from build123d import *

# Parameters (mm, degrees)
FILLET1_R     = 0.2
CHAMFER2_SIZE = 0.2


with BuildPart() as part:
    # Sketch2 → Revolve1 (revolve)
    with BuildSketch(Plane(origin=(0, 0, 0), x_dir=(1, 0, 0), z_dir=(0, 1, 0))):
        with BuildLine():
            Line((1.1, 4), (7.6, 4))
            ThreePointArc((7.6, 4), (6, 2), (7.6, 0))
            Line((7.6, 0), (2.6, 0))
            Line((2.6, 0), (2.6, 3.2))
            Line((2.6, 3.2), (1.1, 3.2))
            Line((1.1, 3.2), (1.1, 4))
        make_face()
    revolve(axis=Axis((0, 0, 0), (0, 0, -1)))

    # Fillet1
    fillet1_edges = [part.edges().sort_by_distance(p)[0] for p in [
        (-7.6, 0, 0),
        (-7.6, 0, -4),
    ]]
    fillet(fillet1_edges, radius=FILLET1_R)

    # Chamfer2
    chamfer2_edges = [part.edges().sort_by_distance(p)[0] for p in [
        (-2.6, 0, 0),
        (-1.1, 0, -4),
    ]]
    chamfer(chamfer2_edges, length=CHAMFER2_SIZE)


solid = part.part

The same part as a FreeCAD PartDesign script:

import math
import FreeCAD as App
import Part
import Sketcher

V = App.Vector


def edges_at(feature, points):
    """Names of the edges that pass closest to the given points."""
    edges = feature.Shape.Edges
    near = lambda p: min(range(len(edges)), key=lambda i: edges[i].distToShape(Part.Vertex(*p))[0])
    return sorted({f"Edge{near(p) + 1}" for p in points})

doc = App.newDocument("Part")
body = doc.addObject("PartDesign::Body", "Body")

# Sketch on XZ plane
sketch1 = body.newObject("Sketcher::SketchObject", "Sketch")
sketch1.AttachmentSupport = (doc.getObject("XZ_Plane"), [""])
sketch1.MapMode = "FlatFace"
sketch1.addGeometry([
    Part.LineSegment(V(7.6, -4, 0), V(1.1, -4, 0)),  # 0
    Part.LineSegment(V(1.1, -4, 0), V(1.1, -3.2, 0)),  # 1
    Part.LineSegment(V(1.1, -3.2, 0), V(2.6, -3.2, 0)),  # 2
    Part.LineSegment(V(2.6, -3.2, 0), V(2.6, 0, 0)),  # 3
    Part.LineSegment(V(2.6, 0, 0), V(7.6, 0, 0)),  # 4
    Part.ArcOfCircle(Part.Circle(V(8.05, -2, 0), V(0, 0, 1), 2.05), math.radians(102.680383), math.radians(257.319617)),  # 5
], False)
sketch1.addConstraint([
    Sketcher.Constraint("Coincident", 0, 2, 1, 1),
    Sketcher.Constraint("Coincident", 1, 2, 2, 1),
    Sketcher.Constraint("Coincident", 2, 2, 3, 1),
    Sketcher.Constraint("Coincident", 3, 2, 4, 1),
    Sketcher.Constraint("Coincident", 4, 2, 5, 1),
    Sketcher.Constraint("Coincident", 5, 2, 0, 1),
    Sketcher.Constraint("Horizontal", 0),
    Sketcher.Constraint("Vertical", 1),
    Sketcher.Constraint("Horizontal", 2),
    Sketcher.Constraint("Vertical", 3),
    Sketcher.Constraint("Horizontal", 4),
    Sketcher.Constraint("PointOnObject", 3, 2, -1),
    Sketcher.Constraint("Vertical", 4, 2, 5, 2),
    Sketcher.Constraint("DistanceX", 4, 1, 4, 2, 5.0),
    Sketcher.Constraint("Radius", 5, 2.05),
    Sketcher.Constraint("DistanceX", 0, 2, 0, 1, 6.5),
    Sketcher.Constraint("DistanceY", 1, 1, 1, 2, 0.8),
    Sketcher.Constraint("DistanceY", 3, 1, 3, 2, 3.2),
    Sketcher.Constraint("DistanceX", -1, 1, 0, 2, 1.1),
])
revolution = body.newObject("PartDesign::Revolution", "Revolution")
revolution.Profile = sketch1
revolution.ReferenceAxis = (sketch1, ["V_Axis"])
revolution.Angle = 360
doc.recompute()

fillet = body.newObject("PartDesign::Fillet", "Fillet")
fillet.Base = (revolution, edges_at(revolution, [(-7.6, 0, 0), (-7.6, 0, -4)]))
fillet.Radius = 0.2
doc.recompute()

chamfer = body.newObject("PartDesign::Chamfer", "Chamfer")
chamfer.Base = (fillet, edges_at(fillet, [(-2.6, 0, 0), (-1.1, 0, -4)]))
chamfer.Size = 0.2

doc.recompute()
